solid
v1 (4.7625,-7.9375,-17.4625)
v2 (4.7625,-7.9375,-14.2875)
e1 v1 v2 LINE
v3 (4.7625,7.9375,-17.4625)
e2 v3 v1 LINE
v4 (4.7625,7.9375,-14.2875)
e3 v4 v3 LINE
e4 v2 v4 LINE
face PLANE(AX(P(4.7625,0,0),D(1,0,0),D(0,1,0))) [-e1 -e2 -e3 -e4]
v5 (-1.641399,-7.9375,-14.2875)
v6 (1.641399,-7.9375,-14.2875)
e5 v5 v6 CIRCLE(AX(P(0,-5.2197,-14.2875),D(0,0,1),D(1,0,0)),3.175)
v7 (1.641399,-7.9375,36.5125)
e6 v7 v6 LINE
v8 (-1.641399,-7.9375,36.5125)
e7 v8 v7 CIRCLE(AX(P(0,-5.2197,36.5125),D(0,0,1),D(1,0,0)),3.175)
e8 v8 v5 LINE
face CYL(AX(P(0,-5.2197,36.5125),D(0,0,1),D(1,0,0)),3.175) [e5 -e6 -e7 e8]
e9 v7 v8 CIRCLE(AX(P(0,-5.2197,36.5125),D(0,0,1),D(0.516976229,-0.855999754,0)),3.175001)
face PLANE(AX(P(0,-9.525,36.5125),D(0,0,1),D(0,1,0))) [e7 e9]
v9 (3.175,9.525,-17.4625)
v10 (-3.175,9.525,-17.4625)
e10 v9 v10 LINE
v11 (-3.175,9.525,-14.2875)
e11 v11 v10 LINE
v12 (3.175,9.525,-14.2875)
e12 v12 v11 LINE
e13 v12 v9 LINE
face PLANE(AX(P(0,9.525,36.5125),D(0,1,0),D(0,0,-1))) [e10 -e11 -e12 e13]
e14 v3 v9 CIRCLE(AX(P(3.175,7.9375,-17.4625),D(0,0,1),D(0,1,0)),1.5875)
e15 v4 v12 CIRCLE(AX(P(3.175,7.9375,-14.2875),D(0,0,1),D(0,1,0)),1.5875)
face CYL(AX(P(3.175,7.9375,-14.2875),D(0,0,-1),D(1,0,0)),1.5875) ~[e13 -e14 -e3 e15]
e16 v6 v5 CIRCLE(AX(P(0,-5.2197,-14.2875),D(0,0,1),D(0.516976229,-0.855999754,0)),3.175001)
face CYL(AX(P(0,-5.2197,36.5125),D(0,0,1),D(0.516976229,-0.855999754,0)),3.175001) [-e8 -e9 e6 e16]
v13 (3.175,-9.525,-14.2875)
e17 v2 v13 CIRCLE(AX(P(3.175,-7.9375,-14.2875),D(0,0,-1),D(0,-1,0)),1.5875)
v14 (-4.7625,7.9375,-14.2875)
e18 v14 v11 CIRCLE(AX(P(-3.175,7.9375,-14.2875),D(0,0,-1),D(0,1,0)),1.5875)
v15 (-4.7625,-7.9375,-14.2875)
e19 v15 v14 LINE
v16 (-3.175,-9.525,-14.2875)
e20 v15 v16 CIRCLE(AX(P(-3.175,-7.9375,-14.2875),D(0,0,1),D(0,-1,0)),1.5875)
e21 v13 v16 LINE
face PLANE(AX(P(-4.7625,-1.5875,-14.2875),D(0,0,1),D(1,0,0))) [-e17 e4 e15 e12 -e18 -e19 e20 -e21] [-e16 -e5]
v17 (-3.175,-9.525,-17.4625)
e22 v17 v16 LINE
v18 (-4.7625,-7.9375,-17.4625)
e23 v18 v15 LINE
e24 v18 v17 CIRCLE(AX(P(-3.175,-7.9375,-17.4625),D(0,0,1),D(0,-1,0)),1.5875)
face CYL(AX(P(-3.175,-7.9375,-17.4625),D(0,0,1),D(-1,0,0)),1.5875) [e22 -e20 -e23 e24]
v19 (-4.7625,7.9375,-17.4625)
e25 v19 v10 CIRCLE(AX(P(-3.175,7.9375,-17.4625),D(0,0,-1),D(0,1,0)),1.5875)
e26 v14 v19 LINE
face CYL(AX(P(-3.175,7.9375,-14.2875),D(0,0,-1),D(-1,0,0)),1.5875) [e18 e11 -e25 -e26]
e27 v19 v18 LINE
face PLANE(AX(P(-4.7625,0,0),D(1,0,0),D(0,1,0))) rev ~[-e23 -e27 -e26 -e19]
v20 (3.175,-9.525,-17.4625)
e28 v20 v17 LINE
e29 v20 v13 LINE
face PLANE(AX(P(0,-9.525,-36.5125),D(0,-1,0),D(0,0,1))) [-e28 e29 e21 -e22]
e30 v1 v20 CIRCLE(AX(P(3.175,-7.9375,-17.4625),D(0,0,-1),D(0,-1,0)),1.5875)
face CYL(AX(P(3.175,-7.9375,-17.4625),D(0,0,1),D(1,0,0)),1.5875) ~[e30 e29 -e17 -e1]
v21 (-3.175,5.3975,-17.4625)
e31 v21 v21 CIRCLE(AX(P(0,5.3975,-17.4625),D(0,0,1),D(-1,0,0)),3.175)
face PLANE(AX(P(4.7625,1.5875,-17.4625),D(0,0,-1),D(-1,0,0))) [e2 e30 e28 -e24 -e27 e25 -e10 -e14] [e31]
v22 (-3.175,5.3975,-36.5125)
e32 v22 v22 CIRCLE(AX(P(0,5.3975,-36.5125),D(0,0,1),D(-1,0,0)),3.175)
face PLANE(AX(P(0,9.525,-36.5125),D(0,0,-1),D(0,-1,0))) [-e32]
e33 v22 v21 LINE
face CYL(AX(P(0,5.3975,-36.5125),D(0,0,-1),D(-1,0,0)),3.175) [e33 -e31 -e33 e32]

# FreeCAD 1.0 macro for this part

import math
import FreeCAD as App
import Part
import Sketcher
Q = App.Units.Quantity


def edges_at(feature, points):
    """Names of the edges that pass closest to the given points."""
    edges = feature.Shape.Edges
    near = lambda p: min(range(len(edges)), key=lambda i: edges[i].distToShape(Part.Vertex(*p))[0])
    return sorted({f"Edge{near(p) + 1}" for p in points})

doc = App.newDocument("Part")
body = doc.addObject("PartDesign::Body", "Body")

# Sketch on YZ plane
sketch1 = body.newObject("Sketcher::SketchObject", "Sketch")
sketch1.AttachmentSupport = (doc.getObject("YZ_Plane"), [""])
sketch1.MapMode = "FlatFace"
sketch1.addGeometry([
    Part.LineSegment(App.Vector(10, 37, 0), App.Vector(-10, 37, 0)),
    Part.LineSegment(App.Vector(-10, 37, 0), App.Vector(-10, -37, 0)),
    Part.LineSegment(App.Vector(-10, -37, 0), App.Vector(10, -37, 0)),
    Part.LineSegment(App.Vector(10, -37, 0), App.Vector(10, 37, 0)),
], False)
sketch1.addConstraint([
    Sketcher.Constraint("Coincident", 0, 2, 1, 1),
    Sketcher.Constraint("Coincident", 1, 2, 2, 1),
    Sketcher.Constraint("Coincident", 2, 2, 3, 1),
    Sketcher.Constraint("Coincident", 3, 2, 0, 1),
    Sketcher.Constraint("Horizontal", 0),
    Sketcher.Constraint("Vertical", 1),
    Sketcher.Constraint("Horizontal", 2),
    Sketcher.Constraint("Vertical", 3),
    Sketcher.Constraint("Symmetric", 0, 2, 2, 2, -1, 1),
    Sketcher.Constraint("DistanceX", 0, 2, 0, 1, Q("0.75 in")),
    Sketcher.Constraint("DistanceY", 1, 2, 1, 1, Q("2.875 in")),
])
pad1 = body.newObject("PartDesign::Pad", "Pad")
pad1.Profile = sketch1
pad1.Length = Q("0.375 in")
pad1.Midplane = True

# Sketch on YZ plane
sketch2 = body.newObject("Sketcher::SketchObject", "Sketch001")
sketch2.AttachmentSupport = (doc.getObject("YZ_Plane"), [""])
sketch2.MapMode = "FlatFace"
sketch2.AttachmentOffset = App.Placement(App.Vector(0, 0, 0.1875 * 25.4), App.Rotation())
sketch2.addGeometry([
    Part.LineSegment(App.Vector(10, -14, 0), App.Vector(10, 37, 0)),
    Part.LineSegment(App.Vector(10, 37, 0), App.Vector(-2, 37, 0)),
    Part.LineSegment(App.Vector(-2, 37, 0), App.Vector(-2, -14, 0)),
    Part.LineSegment(App.Vector(-2, -14, 0), App.Vector(10, -14, 0)),
], False)
sketch2.addConstraint([
    Sketcher.Constraint("Coincident", 0, 2, 1, 1),
    Sketcher.Constraint("Coincident", 1, 2, 2, 1),
    Sketcher.Constraint("Coincident", 2, 2, 3, 1),
    Sketcher.Constraint("Coincident", 3, 2, 0, 1),
    Sketcher.Constraint("Vertical", 0),
    Sketcher.Constraint("Horizontal", 1),
    Sketcher.Constraint("Vertical", 2),
    Sketcher.Constraint("Horizontal", 3),
    Sketcher.Constraint("DistanceY", 0, 1, 0, 2, Q("2 in")),
    Sketcher.Constraint("DistanceX", 1, 2, 1, 1, Q("0.4375 in")),
    Sketcher.Constraint("DistanceX", -1, 1, 0, 2, Q("0.375 in")),
    Sketcher.Constraint("DistanceY", -1, 1, 0, 2, Q("1.4375 in")),
])
pocket1 = body.newObject("PartDesign::Pocket", "Pocket")
pocket1.Profile = sketch2
pocket1.Length = Q("0.375 in")

# Sketch on YZ plane
sketch3 = body.newObject("Sketcher::SketchObject", "Sketch002")
sketch3.AttachmentSupport = (doc.getObject("YZ_Plane"), [""])
sketch3.MapMode = "FlatFace"
sketch3.AttachmentOffset = App.Placement(App.Vector(0, 0, 0.1875 * 25.4), App.Rotation())
sketch3.addGeometry([
    Part.LineSegment(App.Vector(-10, -17, 0), App.Vector(-10, -37, 0)),
    Part.LineSegment(App.Vector(-10, -37, 0), App.Vector(2, -37, 0)),
    Part.LineSegment(App.Vector(2, -37, 0), App.Vector(2, -17, 0)),
    Part.LineSegment(App.Vector(2, -17, 0), App.Vector(-10, -17, 0)),
], False)
sketch3.addConstraint([
    Sketcher.Constraint("Coincident", 0, 2, 1, 1),
    Sketcher.Constraint("Coincident", 1, 2, 2, 1),
    Sketcher.Constraint("Coincident", 2, 2, 3, 1),
    Sketcher.Constraint("Coincident", 3, 2, 0, 1),
    Sketcher.Constraint("Vertical", 0),
    Sketcher.Constraint("Horizontal", 1),
    Sketcher.Constraint("Vertical", 2),
    Sketcher.Constraint("Horizontal", 3),
    Sketcher.Constraint("DistanceY", 0, 2, 0, 1, Q("0.75 in")),
    Sketcher.Constraint("DistanceX", 1, 1, 1, 2, Q("0.4375 in")),
    Sketcher.Constraint("DistanceX", 0, 2, -1, 1, Q("0.375 in")),
    Sketcher.Constraint("DistanceY", 0, 2, -1, 1, Q("1.4375 in")),
])
pocket2 = body.newObject("PartDesign::Pocket", "Pocket001")
pocket2.Profile = sketch3
pocket2.Length = Q("0.375 in")

# Sketch on YZ plane
sketch4 = body.newObject("Sketcher::SketchObject", "Sketch003")
sketch4.AttachmentSupport = (doc.getObject("YZ_Plane"), [""])
sketch4.MapMode = "FlatFace"
sketch4.AttachmentOffset = App.Placement(App.Vector(0, 0, 0.1875 * 25.4), App.Rotation())
sketch4.addGeometry([
    Part.LineSegment(App.Vector(-7.9, -14.3, 0), App.Vector(-7.9, 36.5, 0)),
    Part.LineSegment(App.Vector(-7.9, 36.5, 0), App.Vector(-9.5, 36.5, 0)),
    Part.LineSegment(App.Vector(-9.5, 36.5, 0), App.Vector(-9.5, -14.3, 0)),
    Part.LineSegment(App.Vector(-9.5, -14.3, 0), App.Vector(-7.9, -14.3, 0)),
], False)
sketch4.addConstraint([
    Sketcher.Constraint("Coincident", 0, 2, 1, 1),
    Sketcher.Constraint("Coincident", 1, 2, 2, 1),
    Sketcher.Constraint("Coincident", 2, 2, 3, 1),
    Sketcher.Constraint("Coincident", 3, 2, 0, 1),
    Sketcher.Constraint("Vertical", 0),
    Sketcher.Constraint("Horizontal", 1),
    Sketcher.Constraint("Vertical", 2),
    Sketcher.Constraint("Horizontal", 3),
    Sketcher.Constraint("DistanceY", 0, 1, 0, 2, Q("2 in")),
    Sketcher.Constraint("DistanceX", 1, 2, 1, 1, Q("0.0625 in")),
    Sketcher.Constraint("DistanceX", 0, 2, -1, 1, Q("0.3125 in")),
    Sketcher.Constraint("DistanceY", -1, 1, 0, 2, Q("1.4375 in")),
])
pocket3 = body.newObject("PartDesign::Pocket", "Pocket002")
pocket3.Profile = sketch4
pocket3.Length = Q("0.375 in")

# Sketch on YZ plane
sketch5 = body.newObject("Sketcher::SketchObject", "Sketch004")
sketch5.AttachmentSupport = (doc.getObject("YZ_Plane"), [""])
sketch5.MapMode = "FlatFace"
sketch5.AttachmentOffset = App.Placement(App.Vector(0, 0, 0.1875 * 25.4), App.Rotation())
sketch5.addGeometry([
    Part.LineSegment(App.Vector(7.9, -36.5, 0), App.Vector(9.5, -36.5, 0)),
    Part.LineSegment(App.Vector(9.5, -36.5, 0), App.Vector(9.5, -17.5, 0)),
    Part.LineSegment(App.Vector(9.5, -17.5, 0), App.Vector(7.9, -17.5, 0)),
    Part.LineSegment(App.Vector(7.9, -17.5, 0), App.Vector(7.9, -36.5, 0)),
], False)
sketch5.addConstraint([
    Sketcher.Constraint("Coincident", 0, 2, 1, 1),
    Sketcher.Constraint("Coincident", 1, 2, 2, 1),
    Sketcher.Constraint("Coincident", 2, 2, 3, 1),
    Sketcher.Constraint("Coincident", 3, 2, 0, 1),
    Sketcher.Constraint("Horizontal", 0),
    Sketcher.Constraint("Vertical", 1),
    Sketcher.Constraint("Horizontal", 2),
    Sketcher.Constraint("Vertical", 3),
    Sketcher.Constraint("DistanceY", 1, 1, 1, 2, Q("0.75 in")),
    Sketcher.Constraint("DistanceX", 0, 1, 0, 2, Q("0.0625 in")),
    Sketcher.Constraint("DistanceX", -1, 1, 0, 2, Q("0.375 in")),
    Sketcher.Constraint("DistanceY", 0, 2, -1, 1, Q("1.4375 in")),
])
pocket4 = body.newObject("PartDesign::Pocket", "Pocket003")
pocket4.Profile = sketch5
pocket4.Length = Q("0.375 in")

# Sketch on XY plane
sketch6 = body.newObject("Sketcher::SketchObject", "Sketch005")
sketch6.AttachmentSupport = (doc.getObject("XY_Plane"), [""])
sketch6.MapMode = "FlatFace"
sketch6.AttachmentOffset = App.Placement(App.Vector(0, 0, -1.4375 * 25.4), App.Rotation())
sketch6.addGeometry(Part.Circle(App.Vector(0, 5.4, 0), App.Vector(0, 0, 1), 3.2), False)
sketch6.addConstraint([
    Sketcher.Constraint("PointOnObject", 0, 3, -2),
    Sketcher.Constraint("Diameter", 0, Q("0.25 in")),
    Sketcher.Constraint("DistanceY", -1, 1, 0, 3, Q("0.2125 in")),
])
pad2 = body.newObject("PartDesign::Pad", "Pad001")
pad2.Profile = sketch6
pad2.Length = Q("0.75 in")

# Sketch on XY plane
sketch7 = body.newObject("Sketcher::SketchObject", "Sketch006")
sketch7.AttachmentSupport = (doc.getObject("XY_Plane"), [""])
sketch7.MapMode = "FlatFace"
sketch7.AttachmentOffset = App.Placement(App.Vector(0, 0, 1.4375 * 25.4), App.Rotation())
sketch7.addGeometry([
    Part.LineSegment(App.Vector(1.6, -7.9, 0), App.Vector(4.8, -7.9, 0)),  # 0
    Part.LineSegment(App.Vector(4.8, -7.9, 0), App.Vector(4.8, -1.6, 0)),  # 1
    Part.LineSegment(App.Vector(4.8, -1.6, 0), App.Vector(-4.8, -1.6, 0)),  # 2
    Part.LineSegment(App.Vector(-4.8, -1.6, 0), App.Vector(-4.8, -7.9, 0)),  # 3
    Part.LineSegment(App.Vector(-4.8, -7.9, 0), App.Vector(-1.6, -7.9, 0)),  # 4
    Part.ArcOfCircle(Part.Circle(App.Vector(0, -5.2, 0), App.Vector(0, 0, 1), 3.2), math.radians(-121), math.radians(-59)),  # 5
], False)
sketch7.addConstraint([
    Sketcher.Constraint("Coincident", 0, 2, 1, 1),
    Sketcher.Constraint("Coincident", 1, 2, 2, 1),
    Sketcher.Constraint("Coincident", 2, 2, 3, 1),
    Sketcher.Constraint("Coincident", 3, 2, 4, 1),
    Sketcher.Constraint("Coincident", 4, 2, 5, 1),
    Sketcher.Constraint("Coincident", 5, 2, 0, 1),
    Sketcher.Constraint("Horizontal", 0),
    Sketcher.Constraint("Vertical", 1),
    Sketcher.Constraint("Horizontal", 2),
    Sketcher.Constraint("Vertical", 3),
    Sketcher.Constraint("Horizontal", 4),
    Sketcher.Constraint("Symmetric", 0, 2, 3, 2, -2),
    Sketcher.Constraint("PointOnObject", 5, 3, -2),
    Sketcher.Constraint("Radius", 5, Q("0.125 in")),
    Sketcher.Constraint("DistanceY", 1, 1, 1, 2, Q("0.25 in")),
    Sketcher.Constraint("DistanceX", -1, 1, 0, 2, Q("0.1875 in")),
    Sketcher.Constraint("DistanceY", 5, 3, 1, 2, Q("0.143 in")),
    Sketcher.Constraint("DistanceY", 0, 2, -1, 1, Q("0.3125 in")),
])
pad3 = body.newObject("PartDesign::Pad", "Pad002")
pad3.Profile = sketch7
pad3.Length = Q("2 in")
pad3.Reversed = True
doc.recompute()

fillet = body.newObject("PartDesign::Fillet", "Fillet")
fillet.Base = (pad3, edges_at(pad3, [
    (4.763, 9.525, -15.875),
    (-4.763, 9.525, -15.875),
    (4.763, -9.525, -15.875),
    (-4.763, -9.525, -15.875),
]))
fillet.Radius = Q("0.0625 in")

# Sketch on XY plane
sketch8 = body.newObject("Sketcher::SketchObject", "Sketch007")
sketch8.AttachmentSupport = (doc.getObject("XY_Plane"), [""])
sketch8.MapMode = "FlatFace"
sketch8.AttachmentOffset = App.Placement(App.Vector(0, 0, -1.4375 * 25.4), App.Rotation())
sketch8.addGeometry([
    Part.LineSegment(App.Vector(-4.8, 7.9, 0), App.Vector(-1.9, 7.9, 0)),  # 0
    Part.ArcOfCircle(Part.Circle(App.Vector(0, 5.4, 0), App.Vector(0, 0, 1), 3.2), math.radians(127), math.radians(413)),  # 1
    Part.LineSegment(App.Vector(1.9, 7.9, 0), App.Vector(4.8, 7.9, 0)),  # 2
    Part.LineSegment(App.Vector(4.8, 7.9, 0), App.Vector(4.8, 1.6, 0)),  # 3
    Part.LineSegment(App.Vector(4.8, 1.6, 0), App.Vector(-4.8, 1.6, 0)),  # 4
    Part.LineSegment(App.Vector(-4.8, 1.6, 0), App.Vector(-4.8, 7.9, 0)),  # 5
], False)
sketch8.addConstraint([
    Sketcher.Constraint("Coincident", 0, 2, 1, 1),
    Sketcher.Constraint("Coincident", 1, 2, 2, 1),
    Sketcher.Constraint("Coincident", 2, 2, 3, 1),
    Sketcher.Constraint("Coincident", 3, 2, 4, 1),
    Sketcher.Constraint("Coincident", 4, 2, 5, 1),
    Sketcher.Constraint("Coincident", 5, 2, 0, 1),
    Sketcher.Constraint("Horizontal", 0),
    Sketcher.Constraint("Horizontal", 2),
    Sketcher.Constraint("Vertical", 3),
    Sketcher.Constraint("Horizontal", 4),
    Sketcher.Constraint("Vertical", 5),
    Sketcher.Constraint("Symmetric", 0, 2, 1, 2, -2),
    Sketcher.Constraint("Equal", 0, 2),
    Sketcher.Constraint("Radius", 1, Q("0.125 in")),
    Sketcher.Constraint("DistanceY", 3, 2, 3, 1, Q("0.25 in")),
    Sketcher.Constraint("DistanceY", 1, 3, 0, 2, Q("0.1 in")),
    Sketcher.Constraint("DistanceX", 4, 2, 4, 1, Q("0.375 in")),
    Sketcher.Constraint("DistanceY", -1, 1, 0, 2, Q("0.3125 in")),
])
pocket5 = body.newObject("PartDesign::Pocket", "Pocket004")
pocket5.Profile = sketch8
pocket5.Length = Q("0.75 in")
pocket5.Reversed = True

# Sketch on XY plane
sketch9 = body.newObject("Sketcher::SketchObject", "Sketch008")
sketch9.AttachmentSupport = (doc.getObject("XY_Plane"), [""])
sketch9.MapMode = "FlatFace"
sketch9.AttachmentOffset = App.Placement(App.Vector(0, 0, 1.4375 * 25.4), App.Rotation())
sketch9.addGeometry([
    Part.LineSegment(App.Vector(-4.8, -7.9, 0), App.Vector(-1.6, -7.9, 0)),  # 0
    Part.ArcOfCircle(Part.Circle(App.Vector(0, -5.2, 0), App.Vector(0, 0, 1), 3.2), math.radians(-59), math.radians(239)),  # 1
    Part.LineSegment(App.Vector(1.6, -7.9, 0), App.Vector(4.8, -7.9, 0)),  # 2
    Part.LineSegment(App.Vector(4.8, -7.9, 0), App.Vector(4.8, -1.6, 0)),  # 3
    Part.LineSegment(App.Vector(4.8, -1.6, 0), App.Vector(-4.8, -1.6, 0)),  # 4
    Part.LineSegment(App.Vector(-4.8, -1.6, 0), App.Vector(-4.8, -7.9, 0)),  # 5
], False)
sketch9.addConstraint([
    Sketcher.Constraint("Coincident", 0, 2, 1, 2),
    Sketcher.Constraint("Coincident", 1, 1, 2, 1),
    Sketcher.Constraint("Coincident", 2, 2, 3, 1),
    Sketcher.Constraint("Coincident", 3, 2, 4, 1),
    Sketcher.Constraint("Coincident", 4, 2, 5, 1),
    Sketcher.Constraint("Coincident", 5, 2, 0, 1),
    Sketcher.Constraint("Horizontal", 0),
    Sketcher.Constraint("Horizontal", 2),
    Sketcher.Constraint("Vertical", 3),
    Sketcher.Constraint("Horizontal", 4),
    Sketcher.Constraint("Vertical", 5),
    Sketcher.Constraint("Symmetric", 0, 2, 1, 1, -2),
    Sketcher.Constraint("Equal", 0, 2),
    Sketcher.Constraint("Radius", 1, Q("0.125 in")),
    Sketcher.Constraint("DistanceY", 3, 1, 3, 2, Q("0.25 in")),
    Sketcher.Constraint("DistanceX", 4, 2, 4, 1, Q("0.375 in")),
    Sketcher.Constraint("DistanceY", 0, 2, -1, 1, Q("0.3125 in")),
    Sketcher.Constraint("DistanceY", 0, 2, 1, 3, Q("0.107 in")),
])
pocket6 = body.newObject("PartDesign::Pocket", "Pocket005")
pocket6.Profile = sketch9
pocket6.Length = Q("2 in")

doc.recompute()
